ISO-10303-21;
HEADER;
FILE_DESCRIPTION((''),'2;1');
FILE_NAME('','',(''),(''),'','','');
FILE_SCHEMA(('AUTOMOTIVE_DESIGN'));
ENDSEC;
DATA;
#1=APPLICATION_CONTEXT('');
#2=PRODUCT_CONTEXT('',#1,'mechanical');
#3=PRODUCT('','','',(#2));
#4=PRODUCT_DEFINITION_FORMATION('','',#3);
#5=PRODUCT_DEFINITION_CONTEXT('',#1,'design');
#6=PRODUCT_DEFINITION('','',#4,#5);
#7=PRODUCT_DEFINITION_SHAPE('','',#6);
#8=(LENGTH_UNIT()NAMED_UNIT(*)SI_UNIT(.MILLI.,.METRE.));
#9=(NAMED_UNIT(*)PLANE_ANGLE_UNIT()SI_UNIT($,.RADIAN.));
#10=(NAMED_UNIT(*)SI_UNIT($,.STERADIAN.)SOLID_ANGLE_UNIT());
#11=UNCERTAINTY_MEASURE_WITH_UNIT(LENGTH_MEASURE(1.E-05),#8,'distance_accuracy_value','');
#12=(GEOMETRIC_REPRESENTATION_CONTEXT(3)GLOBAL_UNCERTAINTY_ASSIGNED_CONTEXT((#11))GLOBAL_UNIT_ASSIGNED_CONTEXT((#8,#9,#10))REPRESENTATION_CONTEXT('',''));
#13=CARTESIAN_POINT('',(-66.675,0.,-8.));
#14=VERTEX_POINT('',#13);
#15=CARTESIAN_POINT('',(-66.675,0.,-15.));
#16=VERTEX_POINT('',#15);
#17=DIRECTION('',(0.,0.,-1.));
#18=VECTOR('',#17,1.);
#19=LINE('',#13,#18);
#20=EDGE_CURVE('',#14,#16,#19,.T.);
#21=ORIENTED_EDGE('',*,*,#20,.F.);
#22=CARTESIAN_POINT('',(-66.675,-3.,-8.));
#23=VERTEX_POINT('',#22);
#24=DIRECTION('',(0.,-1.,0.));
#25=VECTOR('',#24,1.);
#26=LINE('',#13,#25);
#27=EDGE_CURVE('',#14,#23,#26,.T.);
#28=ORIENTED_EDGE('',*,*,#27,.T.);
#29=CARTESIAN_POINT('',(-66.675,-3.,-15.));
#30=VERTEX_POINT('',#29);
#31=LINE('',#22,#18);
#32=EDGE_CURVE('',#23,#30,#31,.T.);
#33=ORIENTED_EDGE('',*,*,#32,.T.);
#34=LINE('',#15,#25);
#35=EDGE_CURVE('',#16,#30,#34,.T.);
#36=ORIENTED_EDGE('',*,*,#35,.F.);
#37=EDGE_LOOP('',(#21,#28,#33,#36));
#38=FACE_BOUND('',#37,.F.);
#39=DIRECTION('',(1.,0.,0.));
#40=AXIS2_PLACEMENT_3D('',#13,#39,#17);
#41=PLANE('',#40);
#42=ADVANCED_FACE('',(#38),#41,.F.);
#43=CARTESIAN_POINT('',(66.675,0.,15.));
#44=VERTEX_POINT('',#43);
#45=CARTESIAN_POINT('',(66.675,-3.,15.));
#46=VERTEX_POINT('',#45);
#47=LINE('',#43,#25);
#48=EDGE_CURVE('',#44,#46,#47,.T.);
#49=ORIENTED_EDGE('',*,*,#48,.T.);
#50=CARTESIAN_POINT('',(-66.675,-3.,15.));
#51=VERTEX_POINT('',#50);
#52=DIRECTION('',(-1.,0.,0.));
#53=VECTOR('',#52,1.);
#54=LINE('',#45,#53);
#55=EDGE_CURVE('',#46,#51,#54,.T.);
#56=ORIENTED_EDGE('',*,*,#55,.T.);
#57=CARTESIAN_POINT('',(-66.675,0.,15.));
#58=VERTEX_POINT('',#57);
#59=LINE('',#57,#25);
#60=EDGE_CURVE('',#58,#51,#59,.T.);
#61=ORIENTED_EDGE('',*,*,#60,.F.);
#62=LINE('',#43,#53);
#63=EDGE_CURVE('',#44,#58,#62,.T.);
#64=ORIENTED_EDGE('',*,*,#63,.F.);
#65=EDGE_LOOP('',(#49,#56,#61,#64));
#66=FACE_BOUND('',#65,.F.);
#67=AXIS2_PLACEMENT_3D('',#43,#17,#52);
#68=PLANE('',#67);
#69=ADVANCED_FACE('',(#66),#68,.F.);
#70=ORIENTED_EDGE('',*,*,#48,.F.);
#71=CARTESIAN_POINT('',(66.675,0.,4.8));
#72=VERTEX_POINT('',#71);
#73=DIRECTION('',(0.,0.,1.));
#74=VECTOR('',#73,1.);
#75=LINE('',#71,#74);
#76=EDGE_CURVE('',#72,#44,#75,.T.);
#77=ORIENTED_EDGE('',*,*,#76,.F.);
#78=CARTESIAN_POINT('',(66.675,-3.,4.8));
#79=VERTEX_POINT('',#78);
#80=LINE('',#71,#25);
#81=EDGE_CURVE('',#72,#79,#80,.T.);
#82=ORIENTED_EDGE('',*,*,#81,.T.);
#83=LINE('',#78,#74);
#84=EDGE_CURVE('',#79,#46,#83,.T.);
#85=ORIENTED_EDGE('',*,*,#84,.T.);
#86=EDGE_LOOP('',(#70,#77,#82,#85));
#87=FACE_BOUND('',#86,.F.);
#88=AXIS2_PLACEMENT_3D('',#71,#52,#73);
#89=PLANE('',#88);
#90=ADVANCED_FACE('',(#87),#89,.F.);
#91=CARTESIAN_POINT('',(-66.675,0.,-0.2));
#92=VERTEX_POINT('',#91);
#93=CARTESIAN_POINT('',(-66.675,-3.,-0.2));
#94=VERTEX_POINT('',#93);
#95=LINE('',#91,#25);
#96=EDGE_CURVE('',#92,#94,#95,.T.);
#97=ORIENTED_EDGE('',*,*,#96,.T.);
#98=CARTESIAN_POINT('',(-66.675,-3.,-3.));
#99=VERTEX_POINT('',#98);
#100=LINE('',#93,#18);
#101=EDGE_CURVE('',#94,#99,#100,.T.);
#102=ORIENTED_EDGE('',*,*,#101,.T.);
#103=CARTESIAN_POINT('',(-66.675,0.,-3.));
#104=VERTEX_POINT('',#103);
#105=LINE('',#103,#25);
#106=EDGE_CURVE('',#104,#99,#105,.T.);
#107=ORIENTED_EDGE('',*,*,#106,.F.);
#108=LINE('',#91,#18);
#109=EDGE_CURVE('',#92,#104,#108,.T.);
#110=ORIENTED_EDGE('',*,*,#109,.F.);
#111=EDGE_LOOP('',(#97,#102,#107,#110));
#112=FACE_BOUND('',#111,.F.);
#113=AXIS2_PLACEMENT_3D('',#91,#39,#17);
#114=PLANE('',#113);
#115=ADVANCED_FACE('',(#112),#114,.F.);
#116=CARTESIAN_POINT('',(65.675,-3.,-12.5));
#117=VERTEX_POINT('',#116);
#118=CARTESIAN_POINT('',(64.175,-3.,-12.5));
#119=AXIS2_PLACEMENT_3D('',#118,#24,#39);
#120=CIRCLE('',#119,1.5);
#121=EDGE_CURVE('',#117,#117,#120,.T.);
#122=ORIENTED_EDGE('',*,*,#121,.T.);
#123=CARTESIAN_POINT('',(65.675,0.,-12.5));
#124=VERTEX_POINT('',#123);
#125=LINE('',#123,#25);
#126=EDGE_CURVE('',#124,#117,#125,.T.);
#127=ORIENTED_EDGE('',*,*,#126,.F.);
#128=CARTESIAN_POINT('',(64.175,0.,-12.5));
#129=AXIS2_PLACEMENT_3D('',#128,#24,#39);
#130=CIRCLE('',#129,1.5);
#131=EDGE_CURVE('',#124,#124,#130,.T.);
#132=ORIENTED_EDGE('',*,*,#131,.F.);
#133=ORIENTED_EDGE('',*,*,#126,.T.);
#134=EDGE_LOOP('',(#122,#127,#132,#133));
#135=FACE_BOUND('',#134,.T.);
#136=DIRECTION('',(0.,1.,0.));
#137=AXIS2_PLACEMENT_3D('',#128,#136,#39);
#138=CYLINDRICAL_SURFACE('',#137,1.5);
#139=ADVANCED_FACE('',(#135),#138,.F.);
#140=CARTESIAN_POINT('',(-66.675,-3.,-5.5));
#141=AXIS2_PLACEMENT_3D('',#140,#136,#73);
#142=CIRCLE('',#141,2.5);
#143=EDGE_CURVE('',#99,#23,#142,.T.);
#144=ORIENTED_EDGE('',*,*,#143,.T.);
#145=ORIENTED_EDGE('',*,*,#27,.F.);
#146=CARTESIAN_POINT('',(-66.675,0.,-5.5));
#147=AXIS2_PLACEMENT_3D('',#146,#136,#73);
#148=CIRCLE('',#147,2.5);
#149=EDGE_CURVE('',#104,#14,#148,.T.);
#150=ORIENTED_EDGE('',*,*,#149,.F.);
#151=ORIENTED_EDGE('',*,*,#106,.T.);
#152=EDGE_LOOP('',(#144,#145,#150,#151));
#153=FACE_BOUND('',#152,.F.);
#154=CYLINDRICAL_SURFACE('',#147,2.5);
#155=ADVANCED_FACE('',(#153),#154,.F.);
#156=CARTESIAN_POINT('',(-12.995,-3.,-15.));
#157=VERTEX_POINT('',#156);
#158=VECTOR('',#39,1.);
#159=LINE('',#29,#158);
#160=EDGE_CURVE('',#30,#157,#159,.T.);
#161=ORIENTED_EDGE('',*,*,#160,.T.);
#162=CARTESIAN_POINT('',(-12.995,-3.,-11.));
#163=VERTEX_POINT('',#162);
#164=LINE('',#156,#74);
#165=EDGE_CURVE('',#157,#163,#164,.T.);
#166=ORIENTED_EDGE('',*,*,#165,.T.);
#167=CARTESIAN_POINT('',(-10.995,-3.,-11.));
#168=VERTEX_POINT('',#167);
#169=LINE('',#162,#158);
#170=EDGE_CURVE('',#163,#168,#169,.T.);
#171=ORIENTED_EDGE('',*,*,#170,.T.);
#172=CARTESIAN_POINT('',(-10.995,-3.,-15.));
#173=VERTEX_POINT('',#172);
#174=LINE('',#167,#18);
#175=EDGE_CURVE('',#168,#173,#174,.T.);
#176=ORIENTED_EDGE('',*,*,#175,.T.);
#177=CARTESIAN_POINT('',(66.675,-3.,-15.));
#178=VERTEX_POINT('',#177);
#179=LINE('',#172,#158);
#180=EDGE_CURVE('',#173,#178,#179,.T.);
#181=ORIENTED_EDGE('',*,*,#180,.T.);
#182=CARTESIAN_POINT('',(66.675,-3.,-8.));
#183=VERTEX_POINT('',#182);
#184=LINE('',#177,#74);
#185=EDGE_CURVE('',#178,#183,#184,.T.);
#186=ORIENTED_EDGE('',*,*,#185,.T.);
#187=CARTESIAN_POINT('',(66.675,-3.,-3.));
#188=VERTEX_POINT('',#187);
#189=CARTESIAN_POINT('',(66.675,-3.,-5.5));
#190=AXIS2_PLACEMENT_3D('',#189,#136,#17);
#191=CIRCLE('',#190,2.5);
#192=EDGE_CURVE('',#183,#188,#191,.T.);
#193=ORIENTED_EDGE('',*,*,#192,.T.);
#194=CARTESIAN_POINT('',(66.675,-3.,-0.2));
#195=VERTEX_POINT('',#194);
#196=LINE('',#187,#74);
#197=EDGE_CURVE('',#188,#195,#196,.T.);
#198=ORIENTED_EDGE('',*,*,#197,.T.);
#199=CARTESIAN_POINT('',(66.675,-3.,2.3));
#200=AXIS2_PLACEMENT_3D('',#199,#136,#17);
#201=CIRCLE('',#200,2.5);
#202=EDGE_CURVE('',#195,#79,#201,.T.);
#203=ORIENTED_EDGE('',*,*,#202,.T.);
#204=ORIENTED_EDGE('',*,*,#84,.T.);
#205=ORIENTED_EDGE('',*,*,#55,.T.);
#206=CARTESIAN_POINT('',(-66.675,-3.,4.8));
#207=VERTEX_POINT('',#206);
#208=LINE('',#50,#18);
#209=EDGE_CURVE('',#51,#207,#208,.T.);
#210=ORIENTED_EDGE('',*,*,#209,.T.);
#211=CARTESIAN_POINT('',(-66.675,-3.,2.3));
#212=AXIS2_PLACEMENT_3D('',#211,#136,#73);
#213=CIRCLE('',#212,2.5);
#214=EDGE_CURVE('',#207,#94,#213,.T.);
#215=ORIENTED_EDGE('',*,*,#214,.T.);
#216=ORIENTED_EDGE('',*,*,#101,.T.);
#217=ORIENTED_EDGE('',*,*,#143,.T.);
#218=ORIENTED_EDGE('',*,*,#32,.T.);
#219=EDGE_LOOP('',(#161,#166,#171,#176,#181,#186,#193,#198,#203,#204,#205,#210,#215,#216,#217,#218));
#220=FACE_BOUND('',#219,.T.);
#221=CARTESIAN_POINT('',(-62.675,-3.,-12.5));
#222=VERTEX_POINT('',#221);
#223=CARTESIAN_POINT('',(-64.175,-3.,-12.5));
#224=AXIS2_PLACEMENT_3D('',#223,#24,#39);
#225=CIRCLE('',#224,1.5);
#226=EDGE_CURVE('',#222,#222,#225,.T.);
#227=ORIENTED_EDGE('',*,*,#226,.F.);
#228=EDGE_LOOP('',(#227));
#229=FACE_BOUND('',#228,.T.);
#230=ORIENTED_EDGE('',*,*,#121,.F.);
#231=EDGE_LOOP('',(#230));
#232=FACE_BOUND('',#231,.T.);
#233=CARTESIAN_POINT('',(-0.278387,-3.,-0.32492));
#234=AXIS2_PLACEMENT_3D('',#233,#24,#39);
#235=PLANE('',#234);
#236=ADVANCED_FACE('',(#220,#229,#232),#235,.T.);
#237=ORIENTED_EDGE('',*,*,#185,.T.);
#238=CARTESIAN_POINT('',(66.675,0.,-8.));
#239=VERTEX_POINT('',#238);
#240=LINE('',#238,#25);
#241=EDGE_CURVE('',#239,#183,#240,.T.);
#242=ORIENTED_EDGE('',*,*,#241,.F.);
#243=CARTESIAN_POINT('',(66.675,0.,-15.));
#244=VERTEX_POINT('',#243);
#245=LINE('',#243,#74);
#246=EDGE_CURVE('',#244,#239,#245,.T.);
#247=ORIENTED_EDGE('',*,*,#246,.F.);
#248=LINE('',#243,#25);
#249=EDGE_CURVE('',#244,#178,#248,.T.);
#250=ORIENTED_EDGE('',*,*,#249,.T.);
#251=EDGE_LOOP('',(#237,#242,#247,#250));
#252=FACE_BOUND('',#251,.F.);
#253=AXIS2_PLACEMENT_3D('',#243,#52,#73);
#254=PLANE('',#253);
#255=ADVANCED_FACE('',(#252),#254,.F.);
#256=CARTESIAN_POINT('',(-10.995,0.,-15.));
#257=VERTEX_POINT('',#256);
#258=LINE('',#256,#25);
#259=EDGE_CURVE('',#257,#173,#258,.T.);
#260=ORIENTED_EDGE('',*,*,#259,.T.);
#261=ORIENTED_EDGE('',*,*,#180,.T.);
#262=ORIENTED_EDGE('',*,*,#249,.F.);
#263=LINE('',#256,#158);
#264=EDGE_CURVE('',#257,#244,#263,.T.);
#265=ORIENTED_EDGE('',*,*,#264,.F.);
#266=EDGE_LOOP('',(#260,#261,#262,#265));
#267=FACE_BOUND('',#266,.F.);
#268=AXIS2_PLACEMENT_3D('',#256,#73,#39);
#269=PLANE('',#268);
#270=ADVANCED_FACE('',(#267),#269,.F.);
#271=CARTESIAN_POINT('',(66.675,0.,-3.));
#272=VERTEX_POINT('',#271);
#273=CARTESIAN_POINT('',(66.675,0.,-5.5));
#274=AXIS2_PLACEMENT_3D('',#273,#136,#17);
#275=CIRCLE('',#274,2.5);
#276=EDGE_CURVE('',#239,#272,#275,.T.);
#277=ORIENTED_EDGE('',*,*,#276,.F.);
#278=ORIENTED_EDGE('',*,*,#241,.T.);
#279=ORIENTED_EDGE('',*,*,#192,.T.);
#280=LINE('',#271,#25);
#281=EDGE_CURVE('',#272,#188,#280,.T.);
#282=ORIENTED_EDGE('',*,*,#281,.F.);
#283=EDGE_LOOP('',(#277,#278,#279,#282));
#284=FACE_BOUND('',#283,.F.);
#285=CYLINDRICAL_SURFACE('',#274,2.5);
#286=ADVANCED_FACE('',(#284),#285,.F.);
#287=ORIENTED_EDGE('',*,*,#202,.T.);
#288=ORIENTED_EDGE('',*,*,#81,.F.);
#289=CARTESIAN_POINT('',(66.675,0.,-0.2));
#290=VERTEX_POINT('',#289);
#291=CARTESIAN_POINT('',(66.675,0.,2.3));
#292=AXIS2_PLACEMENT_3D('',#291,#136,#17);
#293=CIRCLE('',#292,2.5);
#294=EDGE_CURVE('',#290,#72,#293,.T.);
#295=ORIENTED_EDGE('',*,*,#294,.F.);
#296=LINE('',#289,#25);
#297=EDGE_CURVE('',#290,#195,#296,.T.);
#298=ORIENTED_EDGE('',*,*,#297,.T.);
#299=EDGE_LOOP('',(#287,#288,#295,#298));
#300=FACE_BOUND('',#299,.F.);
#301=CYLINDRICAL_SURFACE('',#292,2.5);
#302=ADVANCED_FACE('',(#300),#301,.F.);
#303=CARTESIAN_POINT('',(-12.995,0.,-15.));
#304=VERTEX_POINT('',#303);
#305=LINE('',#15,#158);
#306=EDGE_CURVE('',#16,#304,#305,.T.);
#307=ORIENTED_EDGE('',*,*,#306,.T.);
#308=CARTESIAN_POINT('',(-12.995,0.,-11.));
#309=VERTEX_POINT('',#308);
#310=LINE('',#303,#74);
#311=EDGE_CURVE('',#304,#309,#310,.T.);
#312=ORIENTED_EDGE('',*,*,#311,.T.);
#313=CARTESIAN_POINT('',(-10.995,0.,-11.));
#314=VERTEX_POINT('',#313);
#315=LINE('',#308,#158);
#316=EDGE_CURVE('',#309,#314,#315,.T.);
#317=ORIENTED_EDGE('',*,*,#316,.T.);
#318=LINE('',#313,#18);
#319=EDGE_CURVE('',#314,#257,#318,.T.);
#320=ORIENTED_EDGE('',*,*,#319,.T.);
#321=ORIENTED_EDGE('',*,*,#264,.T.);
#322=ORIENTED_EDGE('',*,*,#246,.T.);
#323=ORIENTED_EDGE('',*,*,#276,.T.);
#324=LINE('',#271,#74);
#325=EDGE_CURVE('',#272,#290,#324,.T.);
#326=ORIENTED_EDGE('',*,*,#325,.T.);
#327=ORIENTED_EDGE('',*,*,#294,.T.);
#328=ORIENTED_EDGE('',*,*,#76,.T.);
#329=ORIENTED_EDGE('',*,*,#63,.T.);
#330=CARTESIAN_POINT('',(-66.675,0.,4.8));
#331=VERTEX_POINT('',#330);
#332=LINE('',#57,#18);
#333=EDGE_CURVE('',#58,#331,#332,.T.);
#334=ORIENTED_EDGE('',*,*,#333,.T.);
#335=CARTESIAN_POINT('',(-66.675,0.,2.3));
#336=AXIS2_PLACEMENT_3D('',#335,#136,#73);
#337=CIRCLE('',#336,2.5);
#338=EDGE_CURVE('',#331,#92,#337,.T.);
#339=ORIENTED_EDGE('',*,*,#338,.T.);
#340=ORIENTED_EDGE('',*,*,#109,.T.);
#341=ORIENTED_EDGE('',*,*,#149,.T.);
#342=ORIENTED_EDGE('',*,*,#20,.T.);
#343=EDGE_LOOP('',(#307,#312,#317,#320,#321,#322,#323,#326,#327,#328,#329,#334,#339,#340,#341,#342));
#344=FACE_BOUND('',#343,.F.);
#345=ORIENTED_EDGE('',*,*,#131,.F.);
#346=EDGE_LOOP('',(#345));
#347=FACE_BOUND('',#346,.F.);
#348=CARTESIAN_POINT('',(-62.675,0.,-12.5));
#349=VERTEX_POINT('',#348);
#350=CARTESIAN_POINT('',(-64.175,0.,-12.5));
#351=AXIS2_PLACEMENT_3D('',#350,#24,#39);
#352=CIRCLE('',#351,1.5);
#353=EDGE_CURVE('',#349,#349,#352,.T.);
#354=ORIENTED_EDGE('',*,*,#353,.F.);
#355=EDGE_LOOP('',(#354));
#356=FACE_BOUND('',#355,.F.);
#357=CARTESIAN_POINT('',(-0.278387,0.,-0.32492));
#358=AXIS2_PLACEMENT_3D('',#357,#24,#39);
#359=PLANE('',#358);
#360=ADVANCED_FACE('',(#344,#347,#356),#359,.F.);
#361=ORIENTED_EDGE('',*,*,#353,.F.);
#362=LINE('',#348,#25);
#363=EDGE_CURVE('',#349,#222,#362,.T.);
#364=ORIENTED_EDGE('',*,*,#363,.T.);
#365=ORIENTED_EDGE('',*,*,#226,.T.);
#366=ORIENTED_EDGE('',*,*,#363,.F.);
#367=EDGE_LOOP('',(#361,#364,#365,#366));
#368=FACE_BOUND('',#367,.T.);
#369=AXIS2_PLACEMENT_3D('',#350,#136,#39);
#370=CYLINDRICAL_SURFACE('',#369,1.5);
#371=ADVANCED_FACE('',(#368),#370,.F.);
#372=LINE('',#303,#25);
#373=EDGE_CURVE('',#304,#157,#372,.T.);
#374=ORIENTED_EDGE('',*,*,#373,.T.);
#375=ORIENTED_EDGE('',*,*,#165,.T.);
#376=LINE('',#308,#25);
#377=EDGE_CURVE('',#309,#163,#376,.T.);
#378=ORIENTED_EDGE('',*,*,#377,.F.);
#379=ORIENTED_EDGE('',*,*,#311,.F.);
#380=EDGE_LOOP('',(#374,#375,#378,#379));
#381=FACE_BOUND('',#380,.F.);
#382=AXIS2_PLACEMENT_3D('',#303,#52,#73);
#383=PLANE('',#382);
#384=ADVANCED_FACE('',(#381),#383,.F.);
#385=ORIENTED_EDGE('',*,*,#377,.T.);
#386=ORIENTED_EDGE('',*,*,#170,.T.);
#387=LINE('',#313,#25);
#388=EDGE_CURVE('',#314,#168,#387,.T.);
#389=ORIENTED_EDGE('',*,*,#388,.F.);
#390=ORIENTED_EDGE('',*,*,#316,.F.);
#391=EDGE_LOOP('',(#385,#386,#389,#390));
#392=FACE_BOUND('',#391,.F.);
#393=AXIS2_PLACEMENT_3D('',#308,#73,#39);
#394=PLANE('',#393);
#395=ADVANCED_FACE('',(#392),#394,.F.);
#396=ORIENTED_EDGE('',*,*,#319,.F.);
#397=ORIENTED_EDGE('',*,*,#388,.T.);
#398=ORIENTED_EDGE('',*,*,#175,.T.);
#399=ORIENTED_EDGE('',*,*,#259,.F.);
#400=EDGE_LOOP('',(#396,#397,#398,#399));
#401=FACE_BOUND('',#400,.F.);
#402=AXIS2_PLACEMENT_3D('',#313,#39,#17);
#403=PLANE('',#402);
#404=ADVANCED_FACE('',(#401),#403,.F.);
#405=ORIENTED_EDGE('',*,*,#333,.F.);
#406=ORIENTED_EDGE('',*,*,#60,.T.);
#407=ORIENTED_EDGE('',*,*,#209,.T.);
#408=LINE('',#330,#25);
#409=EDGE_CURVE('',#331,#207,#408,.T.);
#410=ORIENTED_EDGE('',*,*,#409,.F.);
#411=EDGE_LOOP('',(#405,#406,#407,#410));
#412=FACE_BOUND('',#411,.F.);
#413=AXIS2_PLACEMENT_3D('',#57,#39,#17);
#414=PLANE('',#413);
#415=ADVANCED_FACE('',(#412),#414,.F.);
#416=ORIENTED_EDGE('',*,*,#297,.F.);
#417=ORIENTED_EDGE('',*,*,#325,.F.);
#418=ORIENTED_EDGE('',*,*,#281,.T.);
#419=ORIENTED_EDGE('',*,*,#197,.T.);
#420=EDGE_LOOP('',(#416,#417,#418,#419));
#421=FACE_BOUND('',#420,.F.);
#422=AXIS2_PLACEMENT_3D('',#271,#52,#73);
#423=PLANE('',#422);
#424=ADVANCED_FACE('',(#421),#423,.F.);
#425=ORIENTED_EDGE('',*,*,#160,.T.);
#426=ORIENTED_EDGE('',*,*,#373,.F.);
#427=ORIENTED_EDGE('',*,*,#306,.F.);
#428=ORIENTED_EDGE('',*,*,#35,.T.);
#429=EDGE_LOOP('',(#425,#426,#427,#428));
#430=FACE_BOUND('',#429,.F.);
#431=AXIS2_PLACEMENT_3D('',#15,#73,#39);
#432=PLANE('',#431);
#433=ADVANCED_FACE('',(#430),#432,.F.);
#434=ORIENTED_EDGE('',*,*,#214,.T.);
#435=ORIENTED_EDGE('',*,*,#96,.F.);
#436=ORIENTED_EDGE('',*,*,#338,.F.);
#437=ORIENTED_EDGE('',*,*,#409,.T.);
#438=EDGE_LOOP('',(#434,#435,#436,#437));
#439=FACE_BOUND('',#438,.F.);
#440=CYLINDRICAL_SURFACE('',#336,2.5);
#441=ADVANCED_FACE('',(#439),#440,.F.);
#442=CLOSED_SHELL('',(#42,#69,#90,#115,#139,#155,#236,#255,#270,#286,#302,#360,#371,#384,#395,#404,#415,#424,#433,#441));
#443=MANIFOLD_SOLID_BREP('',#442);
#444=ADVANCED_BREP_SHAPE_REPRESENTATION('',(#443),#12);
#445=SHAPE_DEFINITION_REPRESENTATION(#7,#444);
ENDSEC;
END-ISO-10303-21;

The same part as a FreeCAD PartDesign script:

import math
import FreeCAD as App
import Part
import Sketcher
Q = App.Units.Quantity

doc = App.newDocument("Part")
body = doc.addObject("PartDesign::Body", "Body")

sketch1 = body.newObject("Sketcher::SketchObject", "Sketch")
sketch1.AttachmentSupport = (doc.getObject("XZ_Plane"), [""])
sketch1.MapMode = "FlatFace"
sketch1.addGeometry(Part.LineSegment(App.Vector(-10.995, -15, 0), App.Vector(66.675, -15, 0)), False)
sketch1.addGeometry(Part.LineSegment(App.Vector(66.675, -15, 0), App.Vector(66.675, -8, 0)), False)
sketch1.addGeometry(Part.ArcOfCircle(Part.Circle(App.Vector(66.675, -5.5, 0), App.Vector(0, 0, 1), 2.5), math.radians(90), math.radians(270)), False)
sketch1.addGeometry(Part.LineSegment(App.Vector(66.675, -3, 0), App.Vector(66.675, -0.2, 0)), False)
sketch1.addGeometry(Part.ArcOfCircle(Part.Circle(App.Vector(66.675, 2.3, 0), App.Vector(0, 0, 1), 2.5), math.radians(90), math.radians(270)), False)
sketch1.addGeometry(Part.LineSegment(App.Vector(66.675, 4.8, 0), App.Vector(66.675, 15, 0)), False)
sketch1.addGeometry(Part.LineSegment(App.Vector(66.675, 15, 0), App.Vector(-66.675, 15, 0)), False)
sketch1.addGeometry(Part.LineSegment(App.Vector(-66.675, 15, 0), App.Vector(-66.675, 4.8, 0)), False)
sketch1.addGeometry(Part.ArcOfCircle(Part.Circle(App.Vector(-66.675, 2.3, 0), App.Vector(0, 0, 1), 2.5), math.radians(-90), math.radians(90)), False)
sketch1.addGeometry(Part.LineSegment(App.Vector(-66.675, -0.2, 0), App.Vector(-66.675, -3, 0)), False)
sketch1.addGeometry(Part.ArcOfCircle(Part.Circle(App.Vector(-66.675, -5.5, 0), App.Vector(0, 0, 1), 2.5), math.radians(-90), math.radians(90)), False)
sketch1.addGeometry(Part.LineSegment(App.Vector(-66.675, -8, 0), App.Vector(-66.675, -15, 0)), False)
sketch1.addGeometry(Part.LineSegment(App.Vector(-66.675, -15, 0), App.Vector(-12.995, -15, 0)), False)
sketch1.addGeometry(Part.LineSegment(App.Vector(-12.995, -15, 0), App.Vector(-12.995, -11, 0)), False)
sketch1.addGeometry(Part.LineSegment(App.Vector(-12.995, -11, 0), App.Vector(-10.995, -11, 0)), False)
sketch1.addGeometry(Part.LineSegment(App.Vector(-10.995, -11, 0), App.Vector(-10.995, -15, 0)), False)
sketch1.addGeometry(Part.Circle(App.Vector(-64.175, -12.5, 0), App.Vector(0, 0, 1), 1.5), False)
sketch1.addGeometry(Part.Circle(App.Vector(64.175, -12.5, 0), App.Vector(0, 0, 1), 1.5), False)
sketch1.addConstraint(Sketcher.Constraint("Coincident", 0, 2, 1, 1))
sketch1.addConstraint(Sketcher.Constraint("Coincident", 1, 2, 2, 2))
sketch1.addConstraint(Sketcher.Constraint("Coincident", 2, 1, 3, 1))
sketch1.addConstraint(Sketcher.Constraint("Coincident", 3, 2, 4, 2))
sketch1.addConstraint(Sketcher.Constraint("Coincident", 4, 1, 5, 1))
sketch1.addConstraint(Sketcher.Constraint("Coincident", 5, 2, 6, 1))
sketch1.addConstraint(Sketcher.Constraint("Coincident", 6, 2, 7, 1))
sketch1.addConstraint(Sketcher.Constraint("Coincident", 7, 2, 8, 2))
sketch1.addConstraint(Sketcher.Constraint("Coincident", 8, 1, 9, 1))
sketch1.addConstraint(Sketcher.Constraint("Coincident", 9, 2, 10, 2))
sketch1.addConstraint(Sketcher.Constraint("Coincident", 10, 1, 11, 1))
sketch1.addConstraint(Sketcher.Constraint("Coincident", 11, 2, 12, 1))
sketch1.addConstraint(Sketcher.Constraint("Coincident", 12, 2, 13, 1))
sketch1.addConstraint(Sketcher.Constraint("Coincident", 13, 2, 14, 1))
sketch1.addConstraint(Sketcher.Constraint("Coincident", 14, 2, 15, 1))
sketch1.addConstraint(Sketcher.Constraint("Coincident", 15, 2, 0, 1))
sketch1.addConstraint(Sketcher.Constraint("Horizontal", 0))
sketch1.addConstraint(Sketcher.Constraint("Vertical", 1))
sketch1.addConstraint(Sketcher.Constraint("Vertical", 3))
sketch1.addConstraint(Sketcher.Constraint("Vertical", 5))
sketch1.addConstraint(Sketcher.Constraint("Horizontal", 6))
sketch1.addConstraint(Sketcher.Constraint("Vertical", 7))
sketch1.addConstraint(Sketcher.Constraint("Vertical", 9))
sketch1.addConstraint(Sketcher.Constraint("Vertical", 11))
sketch1.addConstraint(Sketcher.Constraint("Horizontal", 12))
sketch1.addConstraint(Sketcher.Constraint("Vertical", 13))
sketch1.addConstraint(Sketcher.Constraint("Horizontal", 14))
sketch1.addConstraint(Sketcher.Constraint("Vertical", 15))
sketch1.addConstraint(Sketcher.Constraint("Equal", 2, 4))
sketch1.addConstraint(Sketcher.Constraint("Equal", 4, 8))
sketch1.addConstraint(Sketcher.Constraint("Equal", 8, 10))
sketch1.addConstraint(Sketcher.Constraint("Equal", 16, 17))
sketch1.addConstraint(Sketcher.Constraint("Symmetric", 0, 2, 6, 2, -1, 1))
sketch1.addConstraint(Sketcher.Constraint("Symmetric", 5, 2, 11, 2, -1, 1))
sketch1.addConstraint(Sketcher.Constraint("Symmetric", 4, 3, 8, 3, -2))
sketch1.addConstraint(Sketcher.Constraint("Symmetric", 2, 3, 10, 3, -2))
sketch1.addConstraint(Sketcher.Constraint("Symmetric", 16, 3, 17, 3, -2))
sketch1.addConstraint(Sketcher.Constraint("Vertical", 2, 3, 4, 3))
sketch1.addConstraint(Sketcher.Constraint("Vertical", 4, 3, 0, 2))
sketch1.addConstraint(Sketcher.Constraint("Vertical", 1, 2, 2, 1))
sketch1.addConstraint(Sketcher.Constraint("Vertical", 3, 2, 4, 1))
sketch1.addConstraint(Sketcher.Constraint("Vertical", 7, 2, 8, 1))
sketch1.addConstraint(Sketcher.Constraint("Diameter", 16, Q("3 mm")))
sketch1.addConstraint(Sketcher.Constraint("Radius", 2, Q("2.5 mm")))
sketch1.addConstraint(Sketcher.Constraint("DistanceX", 14, 1, 14, 2, Q("2 mm")))
sketch1.addConstraint(Sketcher.Constraint("DistanceY", 1, 1, 1, 2, Q("7 mm")))
sketch1.addConstraint(Sketcher.Constraint("DistanceY", 13, 1, 13, 2, Q("4 mm")))
sketch1.addConstraint(Sketcher.Constraint("DistanceY", 3, 1, 3, 2, Q("2.8 mm")))
sketch1.addConstraint(Sketcher.Constraint("DistanceY", 5, 1, 5, 2, Q("10.2 mm")))
sketch1.addConstraint(Sketcher.Constraint("DistanceY", 16, 3, 10, 3, Q("7 mm")))
sketch1.addConstraint(Sketcher.Constraint("DistanceX", 0, 1, 0, 2, Q("77.67 mm")))
sketch1.addConstraint(Sketcher.Constraint("DistanceX", 6, 2, 6, 1, Q("133.35 mm")))
sketch1.addConstraint(Sketcher.Constraint("DistanceX", 10, 3, 16, 3, Q("2.5 mm")))
pad1 = body.newObject("PartDesign::Pad", "Pad")
pad1.Profile = sketch1
pad1.Length = 3

doc.recompute()
